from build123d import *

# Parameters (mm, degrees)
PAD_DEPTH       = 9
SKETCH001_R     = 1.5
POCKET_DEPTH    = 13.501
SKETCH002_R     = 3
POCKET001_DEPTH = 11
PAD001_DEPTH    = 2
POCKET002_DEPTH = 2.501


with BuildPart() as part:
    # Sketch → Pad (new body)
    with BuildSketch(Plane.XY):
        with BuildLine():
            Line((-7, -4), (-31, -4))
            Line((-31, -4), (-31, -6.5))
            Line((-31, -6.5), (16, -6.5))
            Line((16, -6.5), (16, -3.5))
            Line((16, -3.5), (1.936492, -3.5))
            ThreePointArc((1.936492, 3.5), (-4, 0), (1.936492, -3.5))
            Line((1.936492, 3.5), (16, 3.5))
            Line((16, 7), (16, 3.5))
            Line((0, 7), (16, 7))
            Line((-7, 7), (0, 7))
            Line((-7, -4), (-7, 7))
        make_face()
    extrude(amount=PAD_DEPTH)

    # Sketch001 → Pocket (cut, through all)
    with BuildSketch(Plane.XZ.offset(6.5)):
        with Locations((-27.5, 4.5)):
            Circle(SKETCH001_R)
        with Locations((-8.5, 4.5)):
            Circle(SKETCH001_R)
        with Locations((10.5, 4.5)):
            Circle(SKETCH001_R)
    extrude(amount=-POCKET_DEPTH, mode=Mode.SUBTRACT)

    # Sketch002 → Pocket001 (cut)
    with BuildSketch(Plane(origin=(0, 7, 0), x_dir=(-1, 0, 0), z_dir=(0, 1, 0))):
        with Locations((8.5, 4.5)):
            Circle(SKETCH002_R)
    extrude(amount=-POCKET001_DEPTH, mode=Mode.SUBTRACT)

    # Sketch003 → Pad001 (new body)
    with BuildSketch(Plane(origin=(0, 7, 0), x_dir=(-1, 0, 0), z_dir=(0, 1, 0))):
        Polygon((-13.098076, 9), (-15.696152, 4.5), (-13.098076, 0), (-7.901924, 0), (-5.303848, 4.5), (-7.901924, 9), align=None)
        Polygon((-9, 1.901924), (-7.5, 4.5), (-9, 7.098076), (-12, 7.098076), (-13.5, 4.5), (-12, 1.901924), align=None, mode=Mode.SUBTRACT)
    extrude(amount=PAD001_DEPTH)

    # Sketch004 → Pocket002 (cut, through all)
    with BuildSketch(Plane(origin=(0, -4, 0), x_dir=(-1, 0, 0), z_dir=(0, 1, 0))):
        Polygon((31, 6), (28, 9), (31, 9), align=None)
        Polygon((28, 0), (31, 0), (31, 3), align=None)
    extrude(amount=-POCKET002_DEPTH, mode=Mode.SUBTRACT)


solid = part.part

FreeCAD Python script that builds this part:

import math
import FreeCAD as App
import Part
import Sketcher

V = App.Vector
Q = App.Units.Quantity


def add_polygon(sketch, points):
    """Adds a closed chain of lines whose ends are joined by coincident constraints."""
    first, n = sketch.GeometryCount, len(points)
    for a, b in zip(points, points[1:] + points[:1]):
        sketch.addGeometry(Part.LineSegment(App.Vector(*a, 0), App.Vector(*b, 0)), False)
    for i in range(n):
        sketch.addConstraint(Sketcher.Constraint("Coincident", first + i, 2, first + (i + 1) % n, 1))

doc = App.newDocument("Part")
body = doc.addObject("PartDesign::Body", "Body")

# Sketch on XY plane
sketch1 = body.newObject("Sketcher::SketchObject", "Sketch")
sketch1.AttachmentSupport = (doc.getObject("XY_Plane"), [""])
sketch1.MapMode = "FlatFace"
sketch1.addGeometry(Part.LineSegment(V(-7, -4, 0), V(-31, -4, 0)), False)
sketch1.addGeometry(Part.LineSegment(V(-31, -4, 0), V(-31, -6.5, 0)), False)
sketch1.addGeometry(Part.LineSegment(V(-31, -6.5, 0), V(16, -6.5, 0)), False)
sketch1.addGeometry(Part.LineSegment(V(16, -6.5, 0), V(16, -3.5, 0)), False)
sketch1.addGeometry(Part.LineSegment(V(16, -3.5, 0), V(1.9, -3.5, 0)), False)
sketch1.addGeometry(Part.ArcOfCircle(Part.Circle(V(0, 0, 0), V(0, 0, 1), 4), math.radians(61), math.radians(299)), False)
sketch1.addGeometry(Part.LineSegment(V(1.9, 3.5, 0), V(16, 3.5, 0)), False)
sketch1.addGeometry(Part.LineSegment(V(16, 3.5, 0), V(16, 7, 0)), False)
sketch1.addGeometry(Part.LineSegment(V(16, 7, 0), V(-7, 7, 0)), False)
sketch1.addGeometry(Part.LineSegment(V(-7, 7, 0), V(-7, -4, 0)), False)
sketch1.addConstraint(Sketcher.Constraint("Coincident", 0, 2, 1, 1))
sketch1.addConstraint(Sketcher.Constraint("Coincident", 1, 2, 2, 1))
sketch1.addConstraint(Sketcher.Constraint("Coincident", 2, 2, 3, 1))
sketch1.addConstraint(Sketcher.Constraint("Coincident", 3, 2, 4, 1))
sketch1.addConstraint(Sketcher.Constraint("Coincident", 4, 2, 5, 2))
sketch1.addConstraint(Sketcher.Constraint("Coincident", 5, 1, 6, 1))
sketch1.addConstraint(Sketcher.Constraint("Coincident", 6, 2, 7, 1))
sketch1.addConstraint(Sketcher.Constraint("Coincident", 7, 2, 8, 1))
sketch1.addConstraint(Sketcher.Constraint("Coincident", 8, 2, 9, 1))
sketch1.addConstraint(Sketcher.Constraint("Coincident", 9, 2, 0, 1))
sketch1.addConstraint(Sketcher.Constraint("Horizontal", 0))
sketch1.addConstraint(Sketcher.Constraint("Vertical", 1))
sketch1.addConstraint(Sketcher.Constraint("Horizontal", 2))
sketch1.addConstraint(Sketcher.Constraint("Vertical", 3))
sketch1.addConstraint(Sketcher.Constraint("Horizontal", 4))
sketch1.addConstraint(Sketcher.Constraint("Horizontal", 6))
sketch1.addConstraint(Sketcher.Constraint("Vertical", 7))
sketch1.addConstraint(Sketcher.Constraint("Horizontal", 8))
sketch1.addConstraint(Sketcher.Constraint("Vertical", 9))
sketch1.addConstraint(Sketcher.Constraint("Coincident", 5, 3, -1, 1))
sketch1.addConstraint(Sketcher.Constraint("Symmetric", 3, 2, 6, 2, -1))
sketch1.addConstraint(Sketcher.Constraint("Radius", 5, 4.0))
sketch1.addConstraint(Sketcher.Constraint("DistanceX", 0, 2, 0, 1, 24.0))
sketch1.addConstraint(Sketcher.Constraint("DistanceX", 2, 1, 2, 2, 47.0))
sketch1.addConstraint(Sketcher.Constraint("DistanceY", 3, 1, 3, 2, 3.0))
sketch1.addConstraint(Sketcher.Constraint("DistanceY", 9, 2, 9, 1, 11.0))
sketch1.addConstraint(Sketcher.Constraint("DistanceY", 1, 2, 1, 1, 2.5))
sketch1.addConstraint(Sketcher.Constraint("DistanceY", 7, 1, 7, 2, 3.5))
sketch1.addConstraint(Sketcher.Constraint("DistanceX", 0, 2, -1, 1, 31.0))
pad1 = body.newObject("PartDesign::Pad", "Pad")
pad1.Profile = sketch1
pad1.Length = 9

# Sketch on XZ plane
sketch2 = body.newObject("Sketcher::SketchObject", "Sketch001")
sketch2.AttachmentSupport = (doc.getObject("XZ_Plane"), [""])
sketch2.MapMode = "FlatFace"
sketch2.AttachmentOffset = App.Placement(V(0, 0, 6.5), App.Rotation())
sketch2.addGeometry(Part.Circle(V(-27.5, 4.5, 0), V(0, 0, 1), 1.5), False)
sketch2.addGeometry(Part.Circle(V(-8.5, 4.5, 0), V(0, 0, 1), 1.5), False)
sketch2.addGeometry(Part.Circle(V(10.5, 4.5, 0), V(0, 0, 1), 1.5), False)
sketch2.addConstraint(Sketcher.Constraint("Equal", 0, 1))
sketch2.addConstraint(Sketcher.Constraint("Equal", 1, 2))
sketch2.addConstraint(Sketcher.Constraint("Horizontal", 0, 3, 1, 3))
sketch2.addConstraint(Sketcher.Constraint("Horizontal", 1, 3, 2, 3))
sketch2.addConstraint(Sketcher.Constraint("Diameter", 0, 3.0))
sketch2.addConstraint(Sketcher.Constraint("DistanceX", 0, 3, 1, 3, 19.0))
sketch2.addConstraint(Sketcher.Constraint("DistanceX", 1, 3, 2, 3, 19.0))
sketch2.addConstraint(Sketcher.Constraint("DistanceX", 0, 3, -1, 1, 27.5))
sketch2.addConstraint(Sketcher.Constraint("DistanceY", -1, 1, 0, 3, 4.5))
pocket1 = body.newObject("PartDesign::Pocket", "Pocket")
pocket1.Profile = sketch2
pocket1.Type = "ThroughAll"

# Sketch on XZ plane
sketch3 = body.newObject("Sketcher::SketchObject", "Sketch002")
sketch3.AttachmentSupport = (doc.getObject("XZ_Plane"), [""])
sketch3.MapMode = "FlatFace"
sketch3.AttachmentOffset = App.Placement(V(0, 0, -7), App.Rotation())
sketch3.addGeometry(Part.Circle(V(-8.5, 4.5, 0), V(0, 0, 1), 3), False)
sketch3.addConstraint(Sketcher.Constraint("Diameter", 0, 6.0))
sketch3.addConstraint(Sketcher.Constraint("DistanceX", 0, 3, -1, 1, 8.5))
sketch3.addConstraint(Sketcher.Constraint("DistanceY", -1, 1, 0, 3, 4.5))
pocket2 = body.newObject("PartDesign::Pocket", "Pocket001")
pocket2.Profile = sketch3
pocket2.Length = 11
pocket2.Reversed = True

# Sketch on XZ plane
sketch4 = body.newObject("Sketcher::SketchObject", "Sketch003")
sketch4.AttachmentSupport = (doc.getObject("XZ_Plane"), [""])
sketch4.MapMode = "FlatFace"
sketch4.AttachmentOffset = App.Placement(V(0, 0, -7), App.Rotation())
add_polygon(sketch4, [(13.1, 9), (15.7, 4.5), (13.1, 0), (7.9, 0), (5.3, 4.5), (7.9, 9)])  # lines 0-5
add_polygon(sketch4, [(7.5, 4.5), (9, 1.9), (12, 1.9), (13.5, 4.5), (12, 7.1), (9, 7.1)])  # lines 6-11
sketch4.addConstraint(Sketcher.Constraint("Horizontal", 2))
sketch4.addConstraint(Sketcher.Constraint("Horizontal", 5))
sketch4.addConstraint(Sketcher.Constraint("Horizontal", 7))
sketch4.addConstraint(Sketcher.Constraint("Horizontal", 10))
sketch4.addConstraint(Sketcher.Constraint("PointOnObject", 1, 2, -1))
sketch4.addConstraint(Sketcher.Constraint("Parallel", 0, 3))
sketch4.addConstraint(Sketcher.Constraint("Parallel", 1, 4))
sketch4.addConstraint(Sketcher.Constraint("Parallel", 3, 6))
sketch4.addConstraint(Sketcher.Constraint("Parallel", 4, 8))
sketch4.addConstraint(Sketcher.Constraint("Parallel", 6, 9))
sketch4.addConstraint(Sketcher.Constraint("Parallel", 8, 11))
sketch4.addConstraint(Sketcher.Constraint("Horizontal", 0, 2, 3, 2))
sketch4.addConstraint(Sketcher.Constraint("Horizontal", 3, 2, 8, 2))
sketch4.addConstraint(Sketcher.Constraint("Horizontal", 8, 2, 11, 2))
sketch4.addConstraint(Sketcher.Constraint("Vertical", 2, 2, 4, 2))
sketch4.addConstraint(Sketcher.Constraint("Vertical", 1, 2, 5, 2))
sketch4.addConstraint(Sketcher.Constraint("Vertical", 7, 2, 9, 2))
sketch4.addConstraint(Sketcher.Constraint("DistanceX", 7, 1, 7, 2, 3.0))
sketch4.addConstraint(Sketcher.Constraint("Angle", 0, Q("-60.000002 deg")))
sketch4.addConstraint(Sketcher.Constraint("Distance", 6, 3.0))
sketch4.addConstraint(Sketcher.Constraint("DistanceY", -1, 1, 4, 2, 9.0))
sketch4.addConstraint(Sketcher.Constraint("DistanceX", -1, 1, 6, 2, 9.0))
sketch4.addConstraint(Sketcher.Constraint("DistanceX", 2, 2, 2, 1, 5.196152))
sketch4.addConstraint(Sketcher.Constraint("DistanceX", -1, 1, 3, 2, 5.303848))
pad2 = body.newObject("PartDesign::Pad", "Pad001")
pad2.Profile = sketch4
pad2.Length = 2
pad2.Reversed = True

# Sketch on XZ plane
sketch5 = body.newObject("Sketcher::SketchObject", "Sketch004")
sketch5.AttachmentSupport = (doc.getObject("XZ_Plane"), [""])
sketch5.MapMode = "FlatFace"
sketch5.AttachmentOffset = App.Placement(V(0, 0, 4), App.Rotation())
add_polygon(sketch5, [(-28, 9), (-31, 6), (-31, 9)])  # lines 0-2
add_polygon(sketch5, [(-28, 0), (-31, 0), (-31, 3)])  # lines 3-5
sketch5.addConstraint(Sketcher.Constraint("Vertical", 1))
sketch5.addConstraint(Sketcher.Constraint("Horizontal", 2))
sketch5.addConstraint(Sketcher.Constraint("Horizontal", 3))
sketch5.addConstraint(Sketcher.Constraint("Vertical", 4))
sketch5.addConstraint(Sketcher.Constraint("PointOnObject", 3, 2, -1))
sketch5.addConstraint(Sketcher.Constraint("Perpendicular", 0, 5))
sketch5.addConstraint(Sketcher.Constraint("Vertical", 1, 2, 3, 2))
sketch5.addConstraint(Sketcher.Constraint("Vertical", 2, 2, 5, 2))
sketch5.addConstraint(Sketcher.Constraint("Equal", 3, 1))
sketch5.addConstraint(Sketcher.Constraint("DistanceX", 2, 1, 2, 2, 3.0))
sketch5.addConstraint(Sketcher.Constraint("DistanceX", 0, 2, -1, 1, 31.0))
sketch5.addConstraint(Sketcher.Constraint("DistanceY", -1, 1, 0, 2, 6.0))
pocket3 = body.newObject("PartDesign::Pocket", "Pocket002")
pocket3.Profile = sketch5
pocket3.Type = "ThroughAll"
pocket3.Reversed = True

doc.recompute()
